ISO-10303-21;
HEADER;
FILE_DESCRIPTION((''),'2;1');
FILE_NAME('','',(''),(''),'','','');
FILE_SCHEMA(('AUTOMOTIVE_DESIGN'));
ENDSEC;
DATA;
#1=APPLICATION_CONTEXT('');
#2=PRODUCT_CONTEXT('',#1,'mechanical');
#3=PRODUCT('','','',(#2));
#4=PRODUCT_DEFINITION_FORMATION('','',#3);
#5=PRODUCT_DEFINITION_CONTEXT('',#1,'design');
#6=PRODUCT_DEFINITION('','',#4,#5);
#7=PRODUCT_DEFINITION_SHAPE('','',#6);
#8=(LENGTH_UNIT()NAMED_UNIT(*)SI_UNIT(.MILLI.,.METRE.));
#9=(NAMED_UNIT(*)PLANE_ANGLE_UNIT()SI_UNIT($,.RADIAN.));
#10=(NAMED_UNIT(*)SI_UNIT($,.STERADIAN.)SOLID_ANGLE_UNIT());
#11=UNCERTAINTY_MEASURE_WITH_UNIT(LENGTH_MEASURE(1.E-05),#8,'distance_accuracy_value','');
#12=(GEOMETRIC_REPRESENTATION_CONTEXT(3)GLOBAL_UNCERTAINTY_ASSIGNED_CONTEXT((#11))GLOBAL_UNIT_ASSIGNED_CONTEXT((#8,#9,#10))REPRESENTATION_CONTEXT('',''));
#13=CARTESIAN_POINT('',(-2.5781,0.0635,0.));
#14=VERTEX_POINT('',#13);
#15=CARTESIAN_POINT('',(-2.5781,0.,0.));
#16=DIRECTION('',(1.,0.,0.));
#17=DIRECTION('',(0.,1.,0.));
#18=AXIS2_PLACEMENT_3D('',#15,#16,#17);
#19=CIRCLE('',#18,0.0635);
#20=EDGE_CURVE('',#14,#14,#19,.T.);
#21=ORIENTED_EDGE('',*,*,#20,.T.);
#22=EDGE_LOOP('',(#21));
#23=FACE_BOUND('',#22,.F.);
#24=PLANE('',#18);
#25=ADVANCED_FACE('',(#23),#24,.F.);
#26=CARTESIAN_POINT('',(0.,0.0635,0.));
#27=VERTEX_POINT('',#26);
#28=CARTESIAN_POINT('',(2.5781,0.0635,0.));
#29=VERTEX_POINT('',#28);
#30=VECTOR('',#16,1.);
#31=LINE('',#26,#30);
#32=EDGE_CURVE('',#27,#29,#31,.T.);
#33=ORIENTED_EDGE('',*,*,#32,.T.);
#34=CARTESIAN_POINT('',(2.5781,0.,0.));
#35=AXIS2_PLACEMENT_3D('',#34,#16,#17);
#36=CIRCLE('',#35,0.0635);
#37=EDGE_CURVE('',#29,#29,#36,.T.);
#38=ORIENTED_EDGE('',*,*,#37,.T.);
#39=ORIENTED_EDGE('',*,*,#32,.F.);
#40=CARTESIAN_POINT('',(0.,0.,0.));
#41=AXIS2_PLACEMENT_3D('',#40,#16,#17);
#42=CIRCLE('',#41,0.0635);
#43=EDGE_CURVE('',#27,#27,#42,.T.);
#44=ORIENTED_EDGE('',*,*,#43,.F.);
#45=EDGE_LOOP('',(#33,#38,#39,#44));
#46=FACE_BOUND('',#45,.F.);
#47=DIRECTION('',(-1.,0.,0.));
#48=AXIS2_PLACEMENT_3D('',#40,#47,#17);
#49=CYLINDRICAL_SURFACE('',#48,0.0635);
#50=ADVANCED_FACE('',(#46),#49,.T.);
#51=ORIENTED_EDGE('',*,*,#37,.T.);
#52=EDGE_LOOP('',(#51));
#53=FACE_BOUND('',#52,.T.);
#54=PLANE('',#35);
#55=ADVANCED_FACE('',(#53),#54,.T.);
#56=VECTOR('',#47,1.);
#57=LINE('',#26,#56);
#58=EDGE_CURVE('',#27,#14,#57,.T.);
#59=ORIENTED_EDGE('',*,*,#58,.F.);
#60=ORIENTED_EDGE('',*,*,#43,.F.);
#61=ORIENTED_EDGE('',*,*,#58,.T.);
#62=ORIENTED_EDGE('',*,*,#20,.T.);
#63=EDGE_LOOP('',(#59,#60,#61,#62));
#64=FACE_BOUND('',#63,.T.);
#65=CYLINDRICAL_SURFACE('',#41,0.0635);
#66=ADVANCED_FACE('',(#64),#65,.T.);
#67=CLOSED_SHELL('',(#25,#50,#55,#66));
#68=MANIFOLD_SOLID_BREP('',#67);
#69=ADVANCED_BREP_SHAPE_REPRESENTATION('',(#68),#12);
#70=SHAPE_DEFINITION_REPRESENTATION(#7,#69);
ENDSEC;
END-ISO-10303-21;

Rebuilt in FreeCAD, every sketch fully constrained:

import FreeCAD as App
import Part
import Sketcher
from FreeCAD import Vector
Q = App.Units.Quantity

doc = App.newDocument("Part")
body = doc.addObject("PartDesign::Body", "Body")

sketch1 = body.newObject("Sketcher::SketchObject", "Sketch")
sketch1.AttachmentSupport = (doc.getObject("YZ_Plane"), [""])
sketch1.MapMode = "FlatFace"
sketch1.addGeometry(Part.Circle(Vector(0, 0, 0), Vector(0, 0, 1), 0.0635), False)
sketch1.addConstraint(Sketcher.Constraint("Coincident", 0, 3, -1, 1))
sketch1.addConstraint(Sketcher.Constraint("Diameter", 0, Q("0.005 in")))
pad1 = body.newObject("PartDesign::Pad", "Pad")
pad1.Profile = sketch1
pad1.Length = Q("0.203 in")
pad1.Midplane = True

doc.recompute()
